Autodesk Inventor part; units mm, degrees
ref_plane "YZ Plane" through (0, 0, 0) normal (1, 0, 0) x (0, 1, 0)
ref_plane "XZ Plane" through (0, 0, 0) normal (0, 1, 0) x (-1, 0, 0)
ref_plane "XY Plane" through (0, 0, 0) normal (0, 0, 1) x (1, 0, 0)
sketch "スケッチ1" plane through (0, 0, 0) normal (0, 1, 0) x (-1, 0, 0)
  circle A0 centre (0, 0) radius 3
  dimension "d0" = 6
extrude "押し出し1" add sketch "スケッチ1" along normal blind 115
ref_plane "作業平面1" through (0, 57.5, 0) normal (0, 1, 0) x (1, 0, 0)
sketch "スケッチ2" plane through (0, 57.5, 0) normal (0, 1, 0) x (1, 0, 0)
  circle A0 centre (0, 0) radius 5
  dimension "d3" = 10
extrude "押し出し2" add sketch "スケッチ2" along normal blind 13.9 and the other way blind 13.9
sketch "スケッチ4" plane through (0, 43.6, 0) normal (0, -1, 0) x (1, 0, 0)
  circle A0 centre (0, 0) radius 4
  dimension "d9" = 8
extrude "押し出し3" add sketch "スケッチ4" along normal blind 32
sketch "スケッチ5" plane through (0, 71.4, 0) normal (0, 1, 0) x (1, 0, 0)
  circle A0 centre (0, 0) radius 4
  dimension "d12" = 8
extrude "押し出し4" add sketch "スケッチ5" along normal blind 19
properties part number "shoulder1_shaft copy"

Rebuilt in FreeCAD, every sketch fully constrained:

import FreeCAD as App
import Part
import Sketcher
from FreeCAD import Vector
Q = App.Units.Quantity

doc = App.newDocument("Part")
body = doc.addObject("PartDesign::Body", "Body")

sketch1 = body.newObject("Sketcher::SketchObject", "Sketch")
sketch1.AttachmentSupport = (doc.getObject("XZ_Plane"), [""])
sketch1.MapMode = "FlatFace"
sketch1.addGeometry(Part.Circle(Vector(0, 0, 0), Vector(0, 0, 1), 3), False)
sketch1.addConstraint([
    Sketcher.Constraint("Coincident", 0, 3, -1, 1),
    Sketcher.Constraint("Diameter", 0, Q("6 mm")),
])
pad1 = body.newObject("PartDesign::Pad", "Pad")
pad1.Profile = sketch1
pad1.Length = 115
pad1.Reversed = True

sketch2 = body.newObject("Sketcher::SketchObject", "Sketch001")
sketch2.AttachmentSupport = (doc.getObject("XZ_Plane"), [""])
sketch2.MapMode = "FlatFace"
sketch2.AttachmentOffset = App.Placement(Vector(0, 0, -57.5), App.Rotation())
sketch2.addGeometry(Part.Circle(Vector(0, 0, 0), Vector(0, 0, 1), 5), False)
sketch2.addConstraint([
    Sketcher.Constraint("Coincident", 0, 3, -1, 1),
    Sketcher.Constraint("Diameter", 0, Q("10 mm")),
])
pad2 = body.newObject("PartDesign::Pad", "Pad001")
pad2.Profile = sketch2
pad2.Type = "TwoLengths"
pad2.Length = 13.9
pad2.Length2 = 13.9
pad2.Reversed = True

sketch3 = body.newObject("Sketcher::SketchObject", "Sketch002")
sketch3.AttachmentSupport = (doc.getObject("XZ_Plane"), [""])
sketch3.MapMode = "FlatFace"
sketch3.AttachmentOffset = App.Placement(Vector(0, 0, -43.6), App.Rotation())
sketch3.addGeometry(Part.Circle(Vector(0, 0, 0), Vector(0, 0, 1), 4), False)
sketch3.addConstraint([
    Sketcher.Constraint("Coincident", 0, 3, -1, 1),
    Sketcher.Constraint("Diameter", 0, Q("8 mm")),
])
pad3 = body.newObject("PartDesign::Pad", "Pad002")
pad3.Profile = sketch3
pad3.Length = 32

sketch4 = body.newObject("Sketcher::SketchObject", "Sketch003")
sketch4.AttachmentSupport = (doc.getObject("XZ_Plane"), [""])
sketch4.MapMode = "FlatFace"
sketch4.AttachmentOffset = App.Placement(Vector(0, 0, -71.4), App.Rotation())
sketch4.addGeometry(Part.Circle(Vector(0, 0, 0), Vector(0, 0, 1), 4), False)
sketch4.addConstraint([
    Sketcher.Constraint("Coincident", 0, 3, -1, 1),
    Sketcher.Constraint("Diameter", 0, Q("8 mm")),
])
pad4 = body.newObject("PartDesign::Pad", "Pad003")
pad4.Profile = sketch4
pad4.Length = 19
pad4.Reversed = True

doc.recompute()
